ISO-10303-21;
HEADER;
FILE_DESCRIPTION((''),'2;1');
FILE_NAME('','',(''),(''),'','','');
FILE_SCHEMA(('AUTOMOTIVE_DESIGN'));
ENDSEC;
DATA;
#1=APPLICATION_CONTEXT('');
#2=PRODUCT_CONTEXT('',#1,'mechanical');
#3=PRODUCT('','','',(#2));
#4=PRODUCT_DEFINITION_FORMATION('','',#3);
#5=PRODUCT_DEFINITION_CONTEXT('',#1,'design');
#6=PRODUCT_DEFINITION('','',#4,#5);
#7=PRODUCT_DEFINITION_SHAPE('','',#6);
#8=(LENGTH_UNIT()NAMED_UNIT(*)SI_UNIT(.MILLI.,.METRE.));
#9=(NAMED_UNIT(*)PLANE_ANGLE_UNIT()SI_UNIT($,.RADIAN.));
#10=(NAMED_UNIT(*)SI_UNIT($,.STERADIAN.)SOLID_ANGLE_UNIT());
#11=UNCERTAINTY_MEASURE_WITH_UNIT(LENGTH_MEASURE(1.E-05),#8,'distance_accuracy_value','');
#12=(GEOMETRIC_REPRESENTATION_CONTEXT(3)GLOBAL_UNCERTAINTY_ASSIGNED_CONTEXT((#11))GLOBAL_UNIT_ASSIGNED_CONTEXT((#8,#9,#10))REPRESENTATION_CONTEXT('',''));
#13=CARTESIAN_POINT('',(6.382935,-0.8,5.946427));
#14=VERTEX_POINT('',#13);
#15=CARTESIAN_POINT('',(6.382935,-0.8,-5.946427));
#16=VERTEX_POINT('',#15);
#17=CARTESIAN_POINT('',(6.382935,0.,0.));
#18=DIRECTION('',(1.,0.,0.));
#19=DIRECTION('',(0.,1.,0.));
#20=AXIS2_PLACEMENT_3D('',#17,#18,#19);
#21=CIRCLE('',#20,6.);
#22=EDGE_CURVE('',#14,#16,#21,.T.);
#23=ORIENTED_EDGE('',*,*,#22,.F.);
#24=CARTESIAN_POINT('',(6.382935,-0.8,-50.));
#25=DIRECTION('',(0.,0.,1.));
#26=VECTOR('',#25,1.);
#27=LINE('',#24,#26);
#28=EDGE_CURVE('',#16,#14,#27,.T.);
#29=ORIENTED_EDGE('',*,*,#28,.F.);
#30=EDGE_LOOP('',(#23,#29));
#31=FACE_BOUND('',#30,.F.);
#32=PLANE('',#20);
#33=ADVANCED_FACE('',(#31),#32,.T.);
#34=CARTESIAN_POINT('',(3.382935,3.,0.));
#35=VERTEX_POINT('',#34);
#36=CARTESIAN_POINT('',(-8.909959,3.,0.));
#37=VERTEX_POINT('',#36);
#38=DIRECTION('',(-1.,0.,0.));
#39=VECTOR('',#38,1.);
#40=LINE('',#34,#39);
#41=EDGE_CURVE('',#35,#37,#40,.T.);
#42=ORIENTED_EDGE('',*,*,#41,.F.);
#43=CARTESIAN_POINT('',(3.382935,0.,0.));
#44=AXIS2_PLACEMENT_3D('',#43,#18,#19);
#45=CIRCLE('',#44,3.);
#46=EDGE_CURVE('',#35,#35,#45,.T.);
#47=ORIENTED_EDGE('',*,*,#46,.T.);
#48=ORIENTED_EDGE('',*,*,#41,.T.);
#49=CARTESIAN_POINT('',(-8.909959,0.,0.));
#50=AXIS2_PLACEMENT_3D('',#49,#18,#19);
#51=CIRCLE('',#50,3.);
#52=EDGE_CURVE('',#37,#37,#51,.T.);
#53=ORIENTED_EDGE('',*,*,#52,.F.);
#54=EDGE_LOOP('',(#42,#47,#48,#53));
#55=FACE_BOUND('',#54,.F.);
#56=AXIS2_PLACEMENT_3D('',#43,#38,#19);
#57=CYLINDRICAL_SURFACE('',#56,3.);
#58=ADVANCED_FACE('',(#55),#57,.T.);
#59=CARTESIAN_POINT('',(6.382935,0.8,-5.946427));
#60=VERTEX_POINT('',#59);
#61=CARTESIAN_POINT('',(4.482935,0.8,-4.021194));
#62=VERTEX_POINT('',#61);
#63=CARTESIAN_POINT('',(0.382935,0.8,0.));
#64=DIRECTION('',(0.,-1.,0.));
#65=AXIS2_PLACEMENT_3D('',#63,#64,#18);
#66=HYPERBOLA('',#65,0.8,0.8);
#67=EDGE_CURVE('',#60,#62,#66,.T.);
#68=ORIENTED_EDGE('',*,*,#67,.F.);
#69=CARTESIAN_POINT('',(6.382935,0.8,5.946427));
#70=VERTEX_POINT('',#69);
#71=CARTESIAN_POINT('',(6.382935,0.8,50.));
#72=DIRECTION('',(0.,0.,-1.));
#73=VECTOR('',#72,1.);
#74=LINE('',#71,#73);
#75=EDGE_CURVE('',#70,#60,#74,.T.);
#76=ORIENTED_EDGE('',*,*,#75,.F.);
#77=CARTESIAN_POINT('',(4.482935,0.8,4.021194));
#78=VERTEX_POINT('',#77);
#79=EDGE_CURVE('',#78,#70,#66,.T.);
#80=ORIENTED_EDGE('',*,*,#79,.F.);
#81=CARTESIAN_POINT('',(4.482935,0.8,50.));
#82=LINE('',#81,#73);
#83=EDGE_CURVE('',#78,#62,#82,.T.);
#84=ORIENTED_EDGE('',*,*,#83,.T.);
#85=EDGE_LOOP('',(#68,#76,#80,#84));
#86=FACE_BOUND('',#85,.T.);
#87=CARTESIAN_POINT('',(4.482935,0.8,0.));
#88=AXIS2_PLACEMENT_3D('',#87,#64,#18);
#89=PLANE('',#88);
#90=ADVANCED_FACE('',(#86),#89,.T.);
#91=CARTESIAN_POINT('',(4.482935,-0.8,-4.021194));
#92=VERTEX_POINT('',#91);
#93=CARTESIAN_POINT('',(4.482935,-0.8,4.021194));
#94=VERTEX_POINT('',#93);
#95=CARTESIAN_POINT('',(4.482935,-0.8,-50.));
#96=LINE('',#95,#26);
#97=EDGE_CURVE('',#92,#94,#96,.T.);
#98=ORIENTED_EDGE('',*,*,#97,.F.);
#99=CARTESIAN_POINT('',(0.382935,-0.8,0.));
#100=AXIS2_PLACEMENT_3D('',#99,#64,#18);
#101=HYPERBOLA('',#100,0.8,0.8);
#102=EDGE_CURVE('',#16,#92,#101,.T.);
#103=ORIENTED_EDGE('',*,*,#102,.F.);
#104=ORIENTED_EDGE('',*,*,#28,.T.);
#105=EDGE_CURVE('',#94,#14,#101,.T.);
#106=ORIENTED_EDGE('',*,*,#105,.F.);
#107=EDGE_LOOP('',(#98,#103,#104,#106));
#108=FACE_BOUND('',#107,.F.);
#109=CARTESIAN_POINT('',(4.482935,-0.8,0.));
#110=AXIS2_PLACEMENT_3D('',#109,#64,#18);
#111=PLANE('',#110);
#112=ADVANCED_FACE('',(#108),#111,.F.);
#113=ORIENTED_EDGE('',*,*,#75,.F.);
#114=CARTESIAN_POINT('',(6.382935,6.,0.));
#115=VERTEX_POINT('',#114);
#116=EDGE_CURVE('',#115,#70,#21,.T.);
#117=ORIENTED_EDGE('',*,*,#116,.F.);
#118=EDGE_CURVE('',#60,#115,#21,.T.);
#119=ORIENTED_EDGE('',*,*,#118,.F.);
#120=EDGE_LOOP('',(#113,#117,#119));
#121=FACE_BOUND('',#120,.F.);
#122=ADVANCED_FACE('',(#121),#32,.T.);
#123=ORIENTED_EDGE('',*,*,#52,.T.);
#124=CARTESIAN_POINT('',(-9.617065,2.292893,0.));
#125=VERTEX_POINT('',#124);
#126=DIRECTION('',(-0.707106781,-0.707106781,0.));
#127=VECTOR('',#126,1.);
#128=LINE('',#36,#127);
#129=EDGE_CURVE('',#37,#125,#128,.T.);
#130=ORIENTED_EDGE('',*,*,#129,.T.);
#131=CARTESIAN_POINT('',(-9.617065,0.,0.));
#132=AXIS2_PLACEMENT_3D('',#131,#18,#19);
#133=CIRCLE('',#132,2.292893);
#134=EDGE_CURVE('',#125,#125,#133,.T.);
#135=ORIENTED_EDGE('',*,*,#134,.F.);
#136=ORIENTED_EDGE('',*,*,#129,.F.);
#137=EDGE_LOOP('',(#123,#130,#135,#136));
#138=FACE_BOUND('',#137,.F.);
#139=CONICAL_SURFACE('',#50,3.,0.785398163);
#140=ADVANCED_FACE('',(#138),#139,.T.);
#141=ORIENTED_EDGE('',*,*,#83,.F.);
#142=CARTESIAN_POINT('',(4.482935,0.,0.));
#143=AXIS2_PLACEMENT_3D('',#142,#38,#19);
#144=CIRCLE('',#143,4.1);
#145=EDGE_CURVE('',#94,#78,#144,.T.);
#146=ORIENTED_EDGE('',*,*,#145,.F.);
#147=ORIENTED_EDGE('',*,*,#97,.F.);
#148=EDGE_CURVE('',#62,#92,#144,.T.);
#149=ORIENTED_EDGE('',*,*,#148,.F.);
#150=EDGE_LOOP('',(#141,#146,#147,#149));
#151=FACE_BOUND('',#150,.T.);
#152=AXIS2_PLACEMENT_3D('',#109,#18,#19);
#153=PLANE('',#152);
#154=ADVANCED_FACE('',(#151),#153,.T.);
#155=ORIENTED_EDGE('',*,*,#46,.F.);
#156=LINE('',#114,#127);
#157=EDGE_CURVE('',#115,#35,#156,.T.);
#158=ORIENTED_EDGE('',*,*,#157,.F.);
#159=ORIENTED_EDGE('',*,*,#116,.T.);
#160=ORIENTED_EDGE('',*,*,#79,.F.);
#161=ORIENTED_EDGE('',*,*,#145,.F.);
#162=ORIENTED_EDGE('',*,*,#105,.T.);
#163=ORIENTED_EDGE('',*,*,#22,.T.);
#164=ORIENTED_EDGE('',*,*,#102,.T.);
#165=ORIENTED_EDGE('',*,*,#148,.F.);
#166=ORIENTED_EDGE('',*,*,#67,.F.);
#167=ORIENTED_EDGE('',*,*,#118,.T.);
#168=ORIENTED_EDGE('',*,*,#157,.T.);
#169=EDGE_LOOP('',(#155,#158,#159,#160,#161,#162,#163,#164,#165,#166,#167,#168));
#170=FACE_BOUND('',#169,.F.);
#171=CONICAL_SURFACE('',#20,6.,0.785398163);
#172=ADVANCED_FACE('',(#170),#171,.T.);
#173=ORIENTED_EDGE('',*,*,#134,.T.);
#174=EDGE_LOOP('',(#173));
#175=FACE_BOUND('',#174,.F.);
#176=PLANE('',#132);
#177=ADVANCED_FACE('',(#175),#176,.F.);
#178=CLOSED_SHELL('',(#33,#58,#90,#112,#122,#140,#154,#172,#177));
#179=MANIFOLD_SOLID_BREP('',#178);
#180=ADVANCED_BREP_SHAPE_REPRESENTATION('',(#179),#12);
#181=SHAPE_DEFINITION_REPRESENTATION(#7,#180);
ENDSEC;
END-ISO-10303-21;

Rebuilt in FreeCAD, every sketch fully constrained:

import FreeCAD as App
import Part
import Sketcher
from FreeCAD import Vector
Q = App.Units.Quantity

doc = App.newDocument("Part")
params = doc.addObject("Spreadsheet::Sheet", "Params")
for row, (alias, value) in enumerate([
    ("sketch1_width", "16 mm"),
    ("sketch1_height", "6 mm"),
    ("sketch1_length", "1 mm"),
    ("revolution_angle", "360 deg"),
    ("sketch2_width", "1.9 mm"),
    ("sketch2_height", "1.6 mm"),
    ("pocket1_length", "100 mm"),
], start=1):
    params.set(f"A{row}", alias)
    params.set(f"B{row}", "=" + value)
    params.setAlias(f"B{row}", alias)

body = doc.addObject("PartDesign::Body", "Body")

# Sketch on XY plane
sketch1 = doc.addObject("Sketcher::SketchObject", "Sketch")
body.addObject(sketch1)
sketch1.AttachmentSupport = (doc.XY_Plane, [""])
sketch1.MapMode = "FlatFace"
sketch1.addGeometry([
    Part.LineSegment(Vector(6.4, 0, 0), Vector(6.4, 6, 0)),  # 0
    Part.LineSegment(Vector(6.4, 6, 0), Vector(3.4, 3, 0)),  # 1
    Part.LineSegment(Vector(3.4, 3, 0), Vector(-8.9, 3, 0)),  # 2
    Part.LineSegment(Vector(-8.9, 3, 0), Vector(-9.6, 2.3, 0)),  # 3
    Part.LineSegment(Vector(-9.6, 2.3, 0), Vector(-9.6, 0, 0)),  # 4
    Part.LineSegment(Vector(-9.6, 0, 0), Vector(6.4, 0, 0)),  # 5
], False)
sketch1.addConstraint([
    Sketcher.Constraint("Coincident", 0, 2, 1, 1),
    Sketcher.Constraint("Coincident", 1, 2, 2, 1),
    Sketcher.Constraint("Coincident", 2, 2, 3, 1),
    Sketcher.Constraint("Coincident", 3, 2, 4, 1),
    Sketcher.Constraint("Coincident", 4, 2, 5, 1),
    Sketcher.Constraint("Coincident", 5, 2, 0, 1),
    Sketcher.Constraint("Vertical", 0),
    Sketcher.Constraint("Horizontal", 2),
    Sketcher.Constraint("Vertical", 4),
    Sketcher.Constraint("Horizontal", 5),
    Sketcher.Constraint("PointOnObject", 4, 2, -1),
    Sketcher.Constraint("Parallel", 1, 3),
    Sketcher.Constraint("DistanceX", 5, 1, 5, 2, Q("16 mm")),
    Sketcher.Constraint("DistanceY", 0, 1, 0, 2, Q("6 mm")),
    Sketcher.Constraint("Angle", 1, Q("-135 deg")),
    Sketcher.Constraint("Distance", 3, Q("1 mm")),
    Sketcher.Constraint("DistanceY", -1, 1, 1, 2, Q("3 mm")),
    Sketcher.Constraint("DistanceX", 2, 2, -1, 1, Q("8.909959 mm")),
])
sketch1.setExpression("Constraints[12]", "Params.sketch1_width")
sketch1.setExpression("Constraints[13]", "Params.sketch1_height")
sketch1.setExpression("Constraints[15]", "Params.sketch1_length")
revolution = doc.addObject("PartDesign::Revolution", "Revolution")
body.addObject(revolution)
revolution.Profile = sketch1
revolution.ReferenceAxis = (sketch1, ["H_Axis"])
revolution.setExpression("Angle", "Params.revolution_angle")

# Sketch on XY plane
sketch2 = doc.addObject("Sketcher::SketchObject", "Sketch001")
body.addObject(sketch2)
sketch2.AttachmentSupport = (doc.XY_Plane, [""])
sketch2.MapMode = "FlatFace"
sketch2.addGeometry([
    Part.LineSegment(Vector(4.5, 0.8, 0), Vector(4.5, -0.8, 0)),
    Part.LineSegment(Vector(4.5, -0.8, 0), Vector(6.4, -0.8, 0)),
    Part.LineSegment(Vector(6.4, -0.8, 0), Vector(6.4, 0.8, 0)),
    Part.LineSegment(Vector(6.4, 0.8, 0), Vector(4.5, 0.8, 0)),
], False)
sketch2.addConstraint([
    Sketcher.Constraint("Coincident", 0, 2, 1, 1),
    Sketcher.Constraint("Coincident", 1, 2, 2, 1),
    Sketcher.Constraint("Coincident", 2, 2, 3, 1),
    Sketcher.Constraint("Coincident", 3, 2, 0, 1),
    Sketcher.Constraint("Vertical", 0),
    Sketcher.Constraint("Horizontal", 1),
    Sketcher.Constraint("Vertical", 2),
    Sketcher.Constraint("Horizontal", 3),
    Sketcher.Constraint("DistanceX", 1, 1, 1, 2, Q("1.9 mm")),
    Sketcher.Constraint("DistanceY", 0, 2, 0, 1, Q("1.6 mm")),
    Sketcher.Constraint("DistanceY", 0, 2, -1, 1, Q("0.8 mm")),
    Sketcher.Constraint("DistanceX", -1, 1, 0, 2, Q("4.482935 mm")),
])
sketch2.setExpression("Constraints[8]", "Params.sketch2_width")
sketch2.setExpression("Constraints[9]", "Params.sketch2_height")
pocket1 = doc.addObject("PartDesign::Pocket", "Pocket")
body.addObject(pocket1)
pocket1.Profile = sketch2
pocket1.setExpression("Length", "Params.pocket1_length")
pocket1.Midplane = True

doc.recompute()
